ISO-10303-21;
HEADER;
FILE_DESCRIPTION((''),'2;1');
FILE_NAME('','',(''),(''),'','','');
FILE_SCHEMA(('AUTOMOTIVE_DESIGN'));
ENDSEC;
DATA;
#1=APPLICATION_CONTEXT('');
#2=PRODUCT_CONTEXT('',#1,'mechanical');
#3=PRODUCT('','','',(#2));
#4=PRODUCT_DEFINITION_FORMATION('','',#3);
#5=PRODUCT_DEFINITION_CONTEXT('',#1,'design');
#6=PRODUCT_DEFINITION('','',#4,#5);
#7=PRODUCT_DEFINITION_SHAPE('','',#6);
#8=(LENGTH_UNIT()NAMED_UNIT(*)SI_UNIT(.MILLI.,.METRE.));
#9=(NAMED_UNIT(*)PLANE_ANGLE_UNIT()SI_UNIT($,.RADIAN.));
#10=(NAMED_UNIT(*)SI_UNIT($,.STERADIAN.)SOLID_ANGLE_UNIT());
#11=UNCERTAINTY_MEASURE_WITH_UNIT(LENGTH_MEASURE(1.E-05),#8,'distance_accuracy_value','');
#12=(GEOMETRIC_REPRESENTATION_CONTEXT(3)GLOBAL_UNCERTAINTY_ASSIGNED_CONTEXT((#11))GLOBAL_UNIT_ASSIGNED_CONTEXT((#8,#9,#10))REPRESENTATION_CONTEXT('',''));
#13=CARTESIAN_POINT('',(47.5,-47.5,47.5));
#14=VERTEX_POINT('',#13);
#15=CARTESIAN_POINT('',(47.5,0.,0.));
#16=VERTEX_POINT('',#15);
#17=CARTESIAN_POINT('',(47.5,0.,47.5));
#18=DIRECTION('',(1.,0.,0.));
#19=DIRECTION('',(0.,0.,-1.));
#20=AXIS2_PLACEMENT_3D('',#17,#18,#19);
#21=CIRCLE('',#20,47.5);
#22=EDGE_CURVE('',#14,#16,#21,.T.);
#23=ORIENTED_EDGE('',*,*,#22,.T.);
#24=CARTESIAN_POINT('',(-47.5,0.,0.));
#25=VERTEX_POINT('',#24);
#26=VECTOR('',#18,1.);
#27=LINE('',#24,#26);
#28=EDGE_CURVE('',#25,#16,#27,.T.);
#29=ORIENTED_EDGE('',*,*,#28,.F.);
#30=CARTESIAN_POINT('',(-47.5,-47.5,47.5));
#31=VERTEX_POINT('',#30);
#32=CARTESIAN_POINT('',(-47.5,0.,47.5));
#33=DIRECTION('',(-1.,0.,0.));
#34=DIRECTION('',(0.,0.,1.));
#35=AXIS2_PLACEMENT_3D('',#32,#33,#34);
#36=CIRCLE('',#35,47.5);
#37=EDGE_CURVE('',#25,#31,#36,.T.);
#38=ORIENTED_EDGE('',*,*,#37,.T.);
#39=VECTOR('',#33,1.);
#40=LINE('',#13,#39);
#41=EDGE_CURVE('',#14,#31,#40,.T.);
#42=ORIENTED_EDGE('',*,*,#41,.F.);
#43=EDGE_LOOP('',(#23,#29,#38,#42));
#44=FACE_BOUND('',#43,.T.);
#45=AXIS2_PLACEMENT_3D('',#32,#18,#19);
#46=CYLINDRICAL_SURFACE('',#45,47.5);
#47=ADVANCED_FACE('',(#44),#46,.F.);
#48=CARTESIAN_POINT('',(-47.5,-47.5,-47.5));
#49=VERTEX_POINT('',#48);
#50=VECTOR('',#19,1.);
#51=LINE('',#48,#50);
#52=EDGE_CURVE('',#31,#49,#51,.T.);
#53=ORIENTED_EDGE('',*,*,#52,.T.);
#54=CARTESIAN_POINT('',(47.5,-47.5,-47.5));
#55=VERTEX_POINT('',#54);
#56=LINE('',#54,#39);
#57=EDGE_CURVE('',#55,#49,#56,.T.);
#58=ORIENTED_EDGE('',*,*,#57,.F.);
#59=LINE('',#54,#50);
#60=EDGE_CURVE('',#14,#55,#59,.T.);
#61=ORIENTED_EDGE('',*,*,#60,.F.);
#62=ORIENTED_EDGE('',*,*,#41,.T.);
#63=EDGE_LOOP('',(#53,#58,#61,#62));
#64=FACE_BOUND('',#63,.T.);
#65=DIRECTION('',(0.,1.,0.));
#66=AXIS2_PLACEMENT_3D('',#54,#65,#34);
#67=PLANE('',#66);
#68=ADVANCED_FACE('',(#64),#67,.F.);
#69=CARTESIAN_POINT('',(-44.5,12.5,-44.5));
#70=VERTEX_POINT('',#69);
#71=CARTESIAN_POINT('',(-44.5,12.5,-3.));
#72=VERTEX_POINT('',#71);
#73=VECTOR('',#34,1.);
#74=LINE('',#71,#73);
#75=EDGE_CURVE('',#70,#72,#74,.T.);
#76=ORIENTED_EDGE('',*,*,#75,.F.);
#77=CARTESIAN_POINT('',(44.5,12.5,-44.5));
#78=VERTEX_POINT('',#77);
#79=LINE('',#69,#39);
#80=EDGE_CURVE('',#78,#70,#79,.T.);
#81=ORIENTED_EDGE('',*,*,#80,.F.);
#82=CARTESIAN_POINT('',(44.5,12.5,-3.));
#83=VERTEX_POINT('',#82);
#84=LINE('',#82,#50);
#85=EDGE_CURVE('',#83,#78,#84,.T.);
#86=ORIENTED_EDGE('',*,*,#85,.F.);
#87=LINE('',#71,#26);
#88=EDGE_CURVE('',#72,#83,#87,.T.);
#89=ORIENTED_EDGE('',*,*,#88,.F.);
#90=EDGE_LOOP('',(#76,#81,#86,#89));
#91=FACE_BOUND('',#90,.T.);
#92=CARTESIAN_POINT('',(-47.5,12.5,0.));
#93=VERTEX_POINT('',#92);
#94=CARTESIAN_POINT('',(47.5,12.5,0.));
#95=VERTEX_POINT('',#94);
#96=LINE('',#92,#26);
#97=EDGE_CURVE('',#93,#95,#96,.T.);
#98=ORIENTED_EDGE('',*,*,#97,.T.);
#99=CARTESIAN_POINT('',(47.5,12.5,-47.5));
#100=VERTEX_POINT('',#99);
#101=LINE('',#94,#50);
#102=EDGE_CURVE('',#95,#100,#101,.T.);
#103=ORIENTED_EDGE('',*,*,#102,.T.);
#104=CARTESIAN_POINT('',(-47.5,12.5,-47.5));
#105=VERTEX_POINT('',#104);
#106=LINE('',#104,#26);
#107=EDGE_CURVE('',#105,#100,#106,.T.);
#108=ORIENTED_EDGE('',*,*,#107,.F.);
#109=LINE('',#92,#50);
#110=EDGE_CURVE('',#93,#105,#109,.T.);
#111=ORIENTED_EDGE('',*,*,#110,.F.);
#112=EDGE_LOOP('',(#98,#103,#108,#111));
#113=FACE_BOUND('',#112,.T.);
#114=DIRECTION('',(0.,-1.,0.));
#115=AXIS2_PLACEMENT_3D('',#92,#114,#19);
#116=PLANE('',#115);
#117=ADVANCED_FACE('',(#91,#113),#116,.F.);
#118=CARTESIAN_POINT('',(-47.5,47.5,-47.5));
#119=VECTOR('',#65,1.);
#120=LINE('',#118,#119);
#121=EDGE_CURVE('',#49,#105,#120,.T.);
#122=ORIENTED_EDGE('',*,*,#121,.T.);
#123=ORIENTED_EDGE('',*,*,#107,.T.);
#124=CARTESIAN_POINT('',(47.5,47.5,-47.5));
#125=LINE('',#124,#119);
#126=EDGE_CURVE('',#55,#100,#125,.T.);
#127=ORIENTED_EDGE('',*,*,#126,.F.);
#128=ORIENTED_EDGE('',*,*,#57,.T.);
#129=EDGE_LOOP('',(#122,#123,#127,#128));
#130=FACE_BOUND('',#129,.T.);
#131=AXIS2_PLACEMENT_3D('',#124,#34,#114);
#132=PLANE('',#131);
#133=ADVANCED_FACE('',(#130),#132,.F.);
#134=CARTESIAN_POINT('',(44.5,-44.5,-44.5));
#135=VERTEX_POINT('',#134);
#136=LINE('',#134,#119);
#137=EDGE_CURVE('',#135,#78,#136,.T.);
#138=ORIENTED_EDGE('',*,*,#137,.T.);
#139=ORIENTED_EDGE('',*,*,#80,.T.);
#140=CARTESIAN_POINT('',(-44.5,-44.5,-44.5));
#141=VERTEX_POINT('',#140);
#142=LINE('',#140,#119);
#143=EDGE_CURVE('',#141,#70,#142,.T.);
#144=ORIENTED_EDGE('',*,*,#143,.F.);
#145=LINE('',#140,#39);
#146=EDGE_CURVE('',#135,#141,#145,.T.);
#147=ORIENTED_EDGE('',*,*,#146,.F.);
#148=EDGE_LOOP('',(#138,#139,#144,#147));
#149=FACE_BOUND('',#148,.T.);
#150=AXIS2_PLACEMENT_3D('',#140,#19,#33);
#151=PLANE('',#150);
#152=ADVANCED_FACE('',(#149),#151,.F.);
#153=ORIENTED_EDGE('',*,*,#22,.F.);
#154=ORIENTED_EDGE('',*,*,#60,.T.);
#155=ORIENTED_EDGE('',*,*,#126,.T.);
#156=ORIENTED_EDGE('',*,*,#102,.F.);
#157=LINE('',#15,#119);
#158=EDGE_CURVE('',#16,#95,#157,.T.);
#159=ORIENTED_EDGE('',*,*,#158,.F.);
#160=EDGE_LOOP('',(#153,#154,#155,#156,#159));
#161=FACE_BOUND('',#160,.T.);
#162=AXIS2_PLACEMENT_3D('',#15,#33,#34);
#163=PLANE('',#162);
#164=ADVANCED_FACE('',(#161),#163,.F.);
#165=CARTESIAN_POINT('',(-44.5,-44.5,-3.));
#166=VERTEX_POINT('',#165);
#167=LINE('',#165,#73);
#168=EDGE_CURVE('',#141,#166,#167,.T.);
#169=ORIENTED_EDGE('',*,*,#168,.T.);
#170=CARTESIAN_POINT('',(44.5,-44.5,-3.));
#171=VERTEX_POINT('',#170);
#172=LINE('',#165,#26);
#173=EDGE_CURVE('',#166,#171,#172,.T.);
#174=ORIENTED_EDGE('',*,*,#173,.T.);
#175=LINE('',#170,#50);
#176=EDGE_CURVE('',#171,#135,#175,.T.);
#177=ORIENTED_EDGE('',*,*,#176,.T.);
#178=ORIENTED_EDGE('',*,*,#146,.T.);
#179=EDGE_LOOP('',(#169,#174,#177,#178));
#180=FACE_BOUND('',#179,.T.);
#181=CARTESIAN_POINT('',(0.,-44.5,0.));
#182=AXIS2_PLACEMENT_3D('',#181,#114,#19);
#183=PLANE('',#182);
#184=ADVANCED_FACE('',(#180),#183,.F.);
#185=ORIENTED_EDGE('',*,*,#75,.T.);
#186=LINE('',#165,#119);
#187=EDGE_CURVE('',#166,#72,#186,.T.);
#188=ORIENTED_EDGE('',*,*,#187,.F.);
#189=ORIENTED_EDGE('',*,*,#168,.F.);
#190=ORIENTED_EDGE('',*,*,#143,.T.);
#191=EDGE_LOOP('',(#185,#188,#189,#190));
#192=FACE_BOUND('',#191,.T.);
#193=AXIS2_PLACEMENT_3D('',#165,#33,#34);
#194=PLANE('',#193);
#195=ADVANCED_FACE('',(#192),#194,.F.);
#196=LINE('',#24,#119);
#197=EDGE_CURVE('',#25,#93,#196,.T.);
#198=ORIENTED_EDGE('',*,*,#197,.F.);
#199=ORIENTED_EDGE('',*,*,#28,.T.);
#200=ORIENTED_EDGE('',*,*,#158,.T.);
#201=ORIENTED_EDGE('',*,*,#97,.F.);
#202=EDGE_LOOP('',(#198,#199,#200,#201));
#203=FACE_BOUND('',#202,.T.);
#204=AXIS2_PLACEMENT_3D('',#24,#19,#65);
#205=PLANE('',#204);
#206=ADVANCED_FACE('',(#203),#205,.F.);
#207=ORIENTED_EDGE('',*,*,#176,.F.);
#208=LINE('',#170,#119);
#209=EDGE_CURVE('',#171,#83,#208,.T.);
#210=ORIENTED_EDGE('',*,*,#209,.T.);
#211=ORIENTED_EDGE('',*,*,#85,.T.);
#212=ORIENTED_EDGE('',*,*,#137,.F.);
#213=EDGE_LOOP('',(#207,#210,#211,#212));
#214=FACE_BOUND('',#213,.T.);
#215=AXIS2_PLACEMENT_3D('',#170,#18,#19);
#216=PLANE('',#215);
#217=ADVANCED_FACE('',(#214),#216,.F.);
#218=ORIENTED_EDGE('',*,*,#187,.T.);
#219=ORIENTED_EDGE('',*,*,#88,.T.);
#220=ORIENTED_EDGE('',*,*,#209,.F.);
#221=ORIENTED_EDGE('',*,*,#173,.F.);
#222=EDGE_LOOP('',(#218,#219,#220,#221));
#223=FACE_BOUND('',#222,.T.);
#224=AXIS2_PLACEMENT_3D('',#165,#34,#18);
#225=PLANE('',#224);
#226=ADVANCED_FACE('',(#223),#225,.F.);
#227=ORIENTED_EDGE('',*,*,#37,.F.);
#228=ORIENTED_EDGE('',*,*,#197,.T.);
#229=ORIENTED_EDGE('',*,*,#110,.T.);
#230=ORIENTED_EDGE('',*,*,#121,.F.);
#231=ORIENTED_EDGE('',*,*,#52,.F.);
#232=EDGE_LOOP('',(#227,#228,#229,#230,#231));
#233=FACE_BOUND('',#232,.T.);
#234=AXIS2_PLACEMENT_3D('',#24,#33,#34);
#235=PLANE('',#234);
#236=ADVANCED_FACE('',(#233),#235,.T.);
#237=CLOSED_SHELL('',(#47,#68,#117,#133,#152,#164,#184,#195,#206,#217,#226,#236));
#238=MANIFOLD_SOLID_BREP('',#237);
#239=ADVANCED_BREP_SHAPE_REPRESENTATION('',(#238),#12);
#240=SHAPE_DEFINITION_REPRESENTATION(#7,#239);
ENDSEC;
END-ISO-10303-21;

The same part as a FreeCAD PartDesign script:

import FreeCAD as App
import Part
import Sketcher

doc = App.newDocument("Part")
params = doc.addObject("Spreadsheet::Sheet", "Params")
for row, (alias, value) in enumerate([
    ("sketch1_width", "95 mm"),
    ("pad1_length", "95 mm"),
    ("sketch2_diameter", "95 mm"),
    ("sketch3_width", "47.5 mm"),
    ("sketch4_width", "35 mm"),
    ("sketch4_height", "47.5 mm"),
    ("sketch5_width", "89 mm"),
    ("sketch5_height", "41.5 mm"),
    ("pocket4_length", "57 mm"),
], start=1):
    params.set(f"A{row}", alias)
    params.set(f"B{row}", "=" + value)
    params.setAlias(f"B{row}", alias)

body = doc.addObject("PartDesign::Body", "Body")

sketch1 = body.newObject("Sketcher::SketchObject", "Sketch")
sketch1.AttachmentSupport = (doc.getObject("YZ_Plane"), [""])
sketch1.MapMode = "FlatFace"
sketch1.addGeometry([
    Part.LineSegment(App.Vector(47.5, 47.5, 0), App.Vector(-47.5, 47.5, 0)),
    Part.LineSegment(App.Vector(-47.5, 47.5, 0), App.Vector(-47.5, -47.5, 0)),
    Part.LineSegment(App.Vector(-47.5, -47.5, 0), App.Vector(47.5, -47.5, 0)),
    Part.LineSegment(App.Vector(47.5, -47.5, 0), App.Vector(47.5, 47.5, 0)),
], False)
sketch1.addConstraint([
    Sketcher.Constraint("Coincident", 0, 2, 1, 1),
    Sketcher.Constraint("Coincident", 1, 2, 2, 1),
    Sketcher.Constraint("Coincident", 2, 2, 3, 1),
    Sketcher.Constraint("Coincident", 3, 2, 0, 1),
    Sketcher.Constraint("Horizontal", 0),
    Sketcher.Constraint("Vertical", 1),
    Sketcher.Constraint("Horizontal", 2),
    Sketcher.Constraint("Vertical", 3),
    Sketcher.Constraint("Symmetric", 0, 2, 2, 2, -1, 1),
    Sketcher.Constraint("Equal", 2, 1),
    Sketcher.Constraint("DistanceX", 0, 2, 0, 1, 95.0),
])
sketch1.setExpression("Constraints[10]", "Params.sketch1_width")
pad1 = body.newObject("PartDesign::Pad", "Pad")
pad1.Profile = sketch1
pad1.setExpression("Length", "Params.pad1_length")
pad1.Midplane = True

sketch2 = body.newObject("Sketcher::SketchObject", "Sketch001")
sketch2.AttachmentSupport = (doc.getObject("YZ_Plane"), [""])
sketch2.MapMode = "FlatFace"
sketch2.AttachmentOffset = App.Placement(App.Vector(0, 0, 47.5), App.Rotation())
sketch2.addGeometry(Part.Circle(App.Vector(0, 47.5, 0), App.Vector(0, 0, 1), 47.5), False)
sketch2.addConstraint([
    Sketcher.Constraint("PointOnObject", 0, 3, -2),
    Sketcher.Constraint("Diameter", 0, 95.0),
    Sketcher.Constraint("DistanceY", -1, 1, 0, 3, 47.5),
])
sketch2.setExpression("Constraints[1]", "Params.sketch2_diameter")
pocket1 = body.newObject("PartDesign::Pocket", "Pocket")
pocket1.Profile = sketch2
pocket1.Type = "ThroughAll"
pocket1.Midplane = True

sketch3 = body.newObject("Sketcher::SketchObject", "Sketch002")
sketch3.AttachmentSupport = (doc.getObject("YZ_Plane"), [""])
sketch3.MapMode = "FlatFace"
sketch3.addGeometry([
    Part.LineSegment(App.Vector(0, 0, 0), App.Vector(47.5, 0, 0)),
    Part.LineSegment(App.Vector(47.5, 0, 0), App.Vector(47.5, 47.5, 0)),
    Part.LineSegment(App.Vector(47.5, 47.5, 0), App.Vector(0, 0, 0)),
], False)
sketch3.addConstraint([
    Sketcher.Constraint("Coincident", 0, 2, 1, 1),
    Sketcher.Constraint("Coincident", 1, 2, 2, 1),
    Sketcher.Constraint("Coincident", 2, 2, 0, 1),
    Sketcher.Constraint("Horizontal", 0),
    Sketcher.Constraint("Vertical", 1),
    Sketcher.Constraint("Coincident", 2, 2, -1, 1),
    Sketcher.Constraint("Equal", 0, 1),
    Sketcher.Constraint("DistanceX", 0, 1, 0, 2, 47.5),
])
sketch3.setExpression("Constraints[7]", "Params.sketch3_width")
pocket2 = body.newObject("PartDesign::Pocket", "Pocket001")
pocket2.Profile = sketch3
pocket2.Type = "ThroughAll"
pocket2.Midplane = True

sketch4 = body.newObject("Sketcher::SketchObject", "Sketch003")
sketch4.AttachmentSupport = (doc.getObject("YZ_Plane"), [""])
sketch4.MapMode = "FlatFace"
sketch4.addGeometry([
    Part.LineSegment(App.Vector(47.5, 0, 0), App.Vector(12.5, 0, 0)),
    Part.LineSegment(App.Vector(12.5, 0, 0), App.Vector(12.5, -47.5, 0)),
    Part.LineSegment(App.Vector(12.5, -47.5, 0), App.Vector(47.5, -47.5, 0)),
    Part.LineSegment(App.Vector(47.5, -47.5, 0), App.Vector(47.5, 0, 0)),
], False)
sketch4.addConstraint([
    Sketcher.Constraint("Coincident", 0, 2, 1, 1),
    Sketcher.Constraint("Coincident", 1, 2, 2, 1),
    Sketcher.Constraint("Coincident", 2, 2, 3, 1),
    Sketcher.Constraint("Coincident", 3, 2, 0, 1),
    Sketcher.Constraint("Horizontal", 0),
    Sketcher.Constraint("Vertical", 1),
    Sketcher.Constraint("Horizontal", 2),
    Sketcher.Constraint("Vertical", 3),
    Sketcher.Constraint("PointOnObject", 0, 2, -1),
    Sketcher.Constraint("DistanceX", 0, 2, 0, 1, 35.0),
    Sketcher.Constraint("DistanceY", 1, 2, 1, 1, 47.5),
    Sketcher.Constraint("DistanceX", -1, 1, 0, 2, 12.5),
])
sketch4.setExpression("Constraints[9]", "Params.sketch4_width")
sketch4.setExpression("Constraints[10]", "Params.sketch4_height")
pocket3 = body.newObject("PartDesign::Pocket", "Pocket002")
pocket3.Profile = sketch4
pocket3.Type = "ThroughAll"
pocket3.Midplane = True

sketch5 = body.newObject("Sketcher::SketchObject", "Sketch004")
sketch5.AttachmentSupport = (doc.getObject("XZ_Plane"), [""])
sketch5.MapMode = "FlatFace"
sketch5.AttachmentOffset = App.Placement(App.Vector(0, 0, -12.5), App.Rotation())
sketch5.addGeometry([
    Part.LineSegment(App.Vector(-44.5, -44.5, 0), App.Vector(-44.5, -3, 0)),
    Part.LineSegment(App.Vector(-44.5, -3, 0), App.Vector(44.5, -3, 0)),
    Part.LineSegment(App.Vector(44.5, -3, 0), App.Vector(44.5, -44.5, 0)),
    Part.LineSegment(App.Vector(44.5, -44.5, 0), App.Vector(-44.5, -44.5, 0)),
], False)
sketch5.addConstraint([
    Sketcher.Constraint("Coincident", 0, 2, 1, 1),
    Sketcher.Constraint("Coincident", 1, 2, 2, 1),
    Sketcher.Constraint("Coincident", 2, 2, 3, 1),
    Sketcher.Constraint("Coincident", 3, 2, 0, 1),
    Sketcher.Constraint("Vertical", 0),
    Sketcher.Constraint("Horizontal", 1),
    Sketcher.Constraint("Vertical", 2),
    Sketcher.Constraint("Horizontal", 3),
    Sketcher.Constraint("DistanceX", 1, 1, 1, 2, 89.0),
    Sketcher.Constraint("DistanceY", 0, 1, 0, 2, 41.5),
    Sketcher.Constraint("DistanceY", 0, 2, -1, 1, 3.0),
    Sketcher.Constraint("DistanceX", 0, 2, -1, 1, 44.5),
])
sketch5.setExpression("Constraints[8]", "Params.sketch5_width")
sketch5.setExpression("Constraints[9]", "Params.sketch5_height")
pocket4 = body.newObject("PartDesign::Pocket", "Pocket003")
pocket4.Profile = sketch5
pocket4.setExpression("Length", "Params.pocket4_length")
pocket4.Reversed = True

doc.recompute()
